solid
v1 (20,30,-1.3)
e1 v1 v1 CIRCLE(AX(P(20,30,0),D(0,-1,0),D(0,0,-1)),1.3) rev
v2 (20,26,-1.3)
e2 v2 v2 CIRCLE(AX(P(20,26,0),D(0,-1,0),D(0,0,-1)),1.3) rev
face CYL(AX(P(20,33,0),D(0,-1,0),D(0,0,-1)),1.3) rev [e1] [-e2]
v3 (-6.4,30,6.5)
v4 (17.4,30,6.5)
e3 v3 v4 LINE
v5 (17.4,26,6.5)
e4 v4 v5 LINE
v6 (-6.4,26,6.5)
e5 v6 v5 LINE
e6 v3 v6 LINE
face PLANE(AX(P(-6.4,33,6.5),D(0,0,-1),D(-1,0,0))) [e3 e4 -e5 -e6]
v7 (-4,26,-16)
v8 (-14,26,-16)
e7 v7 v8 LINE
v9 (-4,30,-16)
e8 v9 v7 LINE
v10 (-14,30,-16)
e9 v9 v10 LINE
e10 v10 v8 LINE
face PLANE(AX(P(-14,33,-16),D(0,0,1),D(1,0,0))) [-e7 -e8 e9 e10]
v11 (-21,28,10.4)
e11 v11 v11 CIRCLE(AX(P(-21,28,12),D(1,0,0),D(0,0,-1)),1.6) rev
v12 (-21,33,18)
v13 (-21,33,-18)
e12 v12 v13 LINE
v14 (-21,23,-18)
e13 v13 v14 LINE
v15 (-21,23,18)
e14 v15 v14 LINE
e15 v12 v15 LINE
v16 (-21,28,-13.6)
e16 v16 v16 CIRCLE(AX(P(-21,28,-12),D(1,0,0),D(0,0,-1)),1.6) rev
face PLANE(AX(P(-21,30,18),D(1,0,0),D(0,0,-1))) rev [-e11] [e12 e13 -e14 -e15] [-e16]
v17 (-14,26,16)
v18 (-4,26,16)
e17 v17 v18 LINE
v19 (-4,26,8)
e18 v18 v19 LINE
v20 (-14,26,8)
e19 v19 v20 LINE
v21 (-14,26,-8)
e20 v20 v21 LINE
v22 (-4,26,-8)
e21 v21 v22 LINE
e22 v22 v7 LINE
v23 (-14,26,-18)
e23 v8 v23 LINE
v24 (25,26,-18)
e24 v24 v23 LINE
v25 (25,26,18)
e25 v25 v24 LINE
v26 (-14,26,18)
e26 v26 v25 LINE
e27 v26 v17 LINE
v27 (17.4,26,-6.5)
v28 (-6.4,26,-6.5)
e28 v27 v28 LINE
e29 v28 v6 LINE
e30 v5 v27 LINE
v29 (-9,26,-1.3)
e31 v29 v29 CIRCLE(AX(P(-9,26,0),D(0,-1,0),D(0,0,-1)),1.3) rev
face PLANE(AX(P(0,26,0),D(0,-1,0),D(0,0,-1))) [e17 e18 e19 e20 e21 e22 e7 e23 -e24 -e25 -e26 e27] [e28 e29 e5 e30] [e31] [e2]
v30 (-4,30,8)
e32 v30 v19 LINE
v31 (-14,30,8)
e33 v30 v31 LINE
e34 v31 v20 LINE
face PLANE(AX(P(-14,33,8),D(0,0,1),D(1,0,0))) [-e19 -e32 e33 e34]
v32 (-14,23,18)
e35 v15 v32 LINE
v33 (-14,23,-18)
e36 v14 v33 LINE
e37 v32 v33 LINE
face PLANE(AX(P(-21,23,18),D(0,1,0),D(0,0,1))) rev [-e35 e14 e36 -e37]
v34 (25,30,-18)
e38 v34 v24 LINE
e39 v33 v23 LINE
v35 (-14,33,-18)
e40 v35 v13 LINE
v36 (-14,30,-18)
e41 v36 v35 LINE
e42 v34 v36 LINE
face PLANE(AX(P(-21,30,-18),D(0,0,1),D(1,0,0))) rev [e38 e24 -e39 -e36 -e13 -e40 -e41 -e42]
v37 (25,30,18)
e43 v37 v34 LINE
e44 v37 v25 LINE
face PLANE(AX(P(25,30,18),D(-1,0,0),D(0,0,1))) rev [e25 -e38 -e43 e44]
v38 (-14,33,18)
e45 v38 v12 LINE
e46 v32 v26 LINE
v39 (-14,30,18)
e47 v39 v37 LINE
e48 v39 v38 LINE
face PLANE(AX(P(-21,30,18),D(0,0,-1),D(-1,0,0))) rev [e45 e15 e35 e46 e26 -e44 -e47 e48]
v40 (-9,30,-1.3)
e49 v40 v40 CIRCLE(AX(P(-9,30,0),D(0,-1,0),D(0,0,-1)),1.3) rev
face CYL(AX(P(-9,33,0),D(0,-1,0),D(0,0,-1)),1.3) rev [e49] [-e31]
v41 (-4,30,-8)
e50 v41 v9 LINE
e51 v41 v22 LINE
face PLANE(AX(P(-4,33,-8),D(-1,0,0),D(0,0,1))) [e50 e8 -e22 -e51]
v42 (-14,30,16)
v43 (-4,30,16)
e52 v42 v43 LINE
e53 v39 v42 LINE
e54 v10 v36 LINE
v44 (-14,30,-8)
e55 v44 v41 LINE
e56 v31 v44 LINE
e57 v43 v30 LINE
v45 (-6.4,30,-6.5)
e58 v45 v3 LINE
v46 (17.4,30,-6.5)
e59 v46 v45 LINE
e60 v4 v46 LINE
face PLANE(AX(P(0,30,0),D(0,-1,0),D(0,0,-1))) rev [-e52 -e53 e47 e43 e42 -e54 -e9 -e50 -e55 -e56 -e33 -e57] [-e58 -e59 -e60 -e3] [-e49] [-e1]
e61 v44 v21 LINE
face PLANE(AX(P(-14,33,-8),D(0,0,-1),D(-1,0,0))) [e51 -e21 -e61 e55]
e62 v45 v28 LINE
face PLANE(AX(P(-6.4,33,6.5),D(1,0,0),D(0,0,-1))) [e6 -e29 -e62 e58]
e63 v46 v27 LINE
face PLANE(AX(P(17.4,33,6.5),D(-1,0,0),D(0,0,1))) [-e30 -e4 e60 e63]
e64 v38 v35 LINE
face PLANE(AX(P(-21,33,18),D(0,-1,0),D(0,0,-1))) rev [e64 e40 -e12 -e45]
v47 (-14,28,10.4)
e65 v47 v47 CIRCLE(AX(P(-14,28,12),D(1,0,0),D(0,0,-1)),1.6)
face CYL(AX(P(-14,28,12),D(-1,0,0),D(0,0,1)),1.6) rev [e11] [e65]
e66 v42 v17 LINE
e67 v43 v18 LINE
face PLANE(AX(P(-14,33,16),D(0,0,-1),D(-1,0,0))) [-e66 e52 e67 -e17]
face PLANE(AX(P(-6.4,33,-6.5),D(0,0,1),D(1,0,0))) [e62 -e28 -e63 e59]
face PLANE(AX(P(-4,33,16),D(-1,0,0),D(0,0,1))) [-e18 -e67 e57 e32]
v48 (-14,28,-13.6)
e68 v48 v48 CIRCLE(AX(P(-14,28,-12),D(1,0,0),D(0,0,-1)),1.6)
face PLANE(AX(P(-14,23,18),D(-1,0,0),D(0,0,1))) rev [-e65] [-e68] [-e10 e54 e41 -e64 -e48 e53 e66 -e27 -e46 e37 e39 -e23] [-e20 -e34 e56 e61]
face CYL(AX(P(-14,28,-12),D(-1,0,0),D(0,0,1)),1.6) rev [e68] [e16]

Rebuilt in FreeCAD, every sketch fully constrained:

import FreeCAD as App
import Part
import Sketcher

V = App.Vector


def add_polygon(sketch, points):
    """Adds a closed chain of lines whose ends are joined by coincident constraints."""
    first, n = sketch.GeometryCount, len(points)
    for a, b in zip(points, points[1:] + points[:1]):
        sketch.addGeometry(Part.LineSegment(App.Vector(*a, 0), App.Vector(*b, 0)), False)
    for i in range(n):
        sketch.addConstraint(Sketcher.Constraint("Coincident", first + i, 2, first + (i + 1) % n, 1))

doc = App.newDocument("Part")
body = doc.addObject("PartDesign::Body", "Body")

sketch1 = body.newObject("Sketcher::SketchObject", "Sketch")
sketch1.AttachmentSupport = (doc.getObject("XZ_Plane"), [""])
sketch1.MapMode = "FlatFace"
sketch1.AttachmentOffset = App.Placement(V(0, 0, -26), App.Rotation())
add_polygon(sketch1, [(-21, -18), (-21, 18), (25, 18), (25, -18)])
sketch1.addConstraint([
    Sketcher.Constraint("Vertical", 0),
    Sketcher.Constraint("Horizontal", 1),
    Sketcher.Constraint("Vertical", 2),
    Sketcher.Constraint("Horizontal", 3),
    Sketcher.Constraint("DistanceX", 1, 1, 1, 2, 46.0),
    Sketcher.Constraint("DistanceY", 0, 1, 0, 2, 36.0),
    Sketcher.Constraint("DistanceX", 0, 2, -1, 1, 21.0),
    Sketcher.Constraint("DistanceY", -1, 1, 0, 2, 18.0),
])
pad1 = body.newObject("PartDesign::Pad", "Pad")
pad1.Profile = sketch1
pad1.Length = 4
pad1.Reversed = True

sketch2 = body.newObject("Sketcher::SketchObject", "Sketch001")
sketch2.AttachmentSupport = (doc.getObject("XY_Plane"), [""])
sketch2.MapMode = "FlatFace"
sketch2.AttachmentOffset = App.Placement(V(0, 0, -18), App.Rotation())
add_polygon(sketch2, [(-21, 33), (-21, 23), (-14, 23), (-14, 33)])
sketch2.addConstraint([
    Sketcher.Constraint("Vertical", 0),
    Sketcher.Constraint("Horizontal", 1),
    Sketcher.Constraint("Vertical", 2),
    Sketcher.Constraint("Horizontal", 3),
    Sketcher.Constraint("DistanceX", 1, 1, 1, 2, 7.0),
    Sketcher.Constraint("DistanceY", 0, 2, 0, 1, 10.0),
    Sketcher.Constraint("DistanceX", 0, 2, -1, 1, 21.0),
    Sketcher.Constraint("DistanceY", -1, 1, 0, 2, 23.0),
])
pad2 = body.newObject("PartDesign::Pad", "Pad001")
pad2.Profile = sketch2
pad2.Length = 36

sketch3 = body.newObject("Sketcher::SketchObject", "Sketch002")
sketch3.AttachmentSupport = (doc.getObject("XZ_Plane"), [""])
sketch3.MapMode = "FlatFace"
sketch3.AttachmentOffset = App.Placement(V(0, 0, -25), App.Rotation())
add_polygon(sketch3, [(-6, -6), (-6, 6), (17, 6), (17, -6)])
sketch3.addConstraint([
    Sketcher.Constraint("Vertical", 0),
    Sketcher.Constraint("Horizontal", 1),
    Sketcher.Constraint("Vertical", 2),
    Sketcher.Constraint("Horizontal", 3),
    Sketcher.Constraint("DistanceY", 0, 1, 0, 2, 13.0),
    Sketcher.Constraint("DistanceX", 1, 1, 1, 2, 23.8),
    Sketcher.Constraint("DistanceX", 0, 2, -1, 1, 6.4),
    Sketcher.Constraint("DistanceY", -1, 1, 0, 2, 6.5),
])
pocket1 = body.newObject("PartDesign::Pocket", "Pocket")
pocket1.Profile = sketch3
pocket1.Type = "ThroughAll"

sketch4 = body.newObject("Sketcher::SketchObject", "Sketch003")
sketch4.AttachmentSupport = (doc.getObject("XZ_Plane"), [""])
sketch4.MapMode = "FlatFace"
sketch4.AttachmentOffset = App.Placement(V(0, 0, -25), App.Rotation())
sketch4.addGeometry([
    Part.Circle(V(-9, 0, 0), V(0, 0, 1), 1.3),
    Part.Circle(V(20, 0, 0), V(0, 0, 1), 1.3),
], False)
sketch4.addConstraint([
    Sketcher.Constraint("Equal", 0, 1),
    Sketcher.Constraint("PointOnObject", 0, 3, -1),
    Sketcher.Constraint("PointOnObject", 1, 3, -1),
    Sketcher.Constraint("Diameter", 0, 2.6),
    Sketcher.Constraint("DistanceX", 0, 3, -1, 1, 9.0),
    Sketcher.Constraint("DistanceX", -1, 1, 1, 3, 20.0),
])
pocket2 = body.newObject("PartDesign::Pocket", "Pocket001")
pocket2.Profile = sketch4
pocket2.Type = "ThroughAll"

sketch5 = body.newObject("Sketcher::SketchObject", "Sketch004")
sketch5.AttachmentSupport = (doc.getObject("XZ_Plane"), [""])
sketch5.MapMode = "FlatFace"
sketch5.AttachmentOffset = App.Placement(V(0, 0, -20), App.Rotation())
add_polygon(sketch5, [(-14, -16), (-14, -8), (-4, -8), (-4, -16)])
sketch5.addConstraint([
    Sketcher.Constraint("Vertical", 0),
    Sketcher.Constraint("Horizontal", 1),
    Sketcher.Constraint("Vertical", 2),
    Sketcher.Constraint("Horizontal", 3),
    Sketcher.Constraint("DistanceX", 1, 1, 1, 2, 10.0),
    Sketcher.Constraint("DistanceY", 0, 1, 0, 2, 8.0),
    Sketcher.Constraint("DistanceX", 0, 2, -1, 1, 14.0),
    Sketcher.Constraint("DistanceY", 0, 2, -1, 1, 8.0),
])
pocket3 = body.newObject("PartDesign::Pocket", "Pocket002")
pocket3.Profile = sketch5
pocket3.Type = "ThroughAll"

sketch6 = body.newObject("Sketcher::SketchObject", "Sketch005")
sketch6.AttachmentSupport = (doc.getObject("XZ_Plane"), [""])
sketch6.MapMode = "FlatFace"
sketch6.AttachmentOffset = App.Placement(V(0, 0, -20), App.Rotation())
add_polygon(sketch6, [(-14, 8), (-14, 16), (-4, 16), (-4, 8)])
sketch6.addConstraint([
    Sketcher.Constraint("Vertical", 0),
    Sketcher.Constraint("Horizontal", 1),
    Sketcher.Constraint("Vertical", 2),
    Sketcher.Constraint("Horizontal", 3),
    Sketcher.Constraint("DistanceX", 1, 1, 1, 2, 10.0),
    Sketcher.Constraint("DistanceY", 0, 1, 0, 2, 8.0),
    Sketcher.Constraint("DistanceX", 0, 2, -1, 1, 14.0),
    Sketcher.Constraint("DistanceY", -1, 1, 0, 2, 16.0),
])
pocket4 = body.newObject("PartDesign::Pocket", "Pocket003")
pocket4.Profile = sketch6
pocket4.Type = "ThroughAll"

sketch7 = body.newObject("Sketcher::SketchObject", "Sketch006")
sketch7.AttachmentSupport = (doc.getObject("YZ_Plane"), [""])
sketch7.MapMode = "FlatFace"
sketch7.AttachmentOffset = App.Placement(V(0, 0, -25), App.Rotation())
sketch7.addGeometry([
    Part.Circle(V(28, -12, 0), V(0, 0, 1), 1.6),
    Part.Circle(V(28, 12, 0), V(0, 0, 1), 1.6),
], False)
sketch7.addConstraint([
    Sketcher.Constraint("Equal", 0, 1),
    Sketcher.Constraint("Symmetric", 0, 3, 1, 3, -1),
    Sketcher.Constraint("Diameter", 0, 3.2),
    Sketcher.Constraint("DistanceX", -1, 1, 0, 3, 28.0),
    Sketcher.Constraint("DistanceY", 0, 3, -1, 1, 12.0),
])
pocket5 = body.newObject("PartDesign::Pocket", "Pocket004")
pocket5.Profile = sketch7
pocket5.Length = 11
pocket5.Reversed = True

doc.recompute()
